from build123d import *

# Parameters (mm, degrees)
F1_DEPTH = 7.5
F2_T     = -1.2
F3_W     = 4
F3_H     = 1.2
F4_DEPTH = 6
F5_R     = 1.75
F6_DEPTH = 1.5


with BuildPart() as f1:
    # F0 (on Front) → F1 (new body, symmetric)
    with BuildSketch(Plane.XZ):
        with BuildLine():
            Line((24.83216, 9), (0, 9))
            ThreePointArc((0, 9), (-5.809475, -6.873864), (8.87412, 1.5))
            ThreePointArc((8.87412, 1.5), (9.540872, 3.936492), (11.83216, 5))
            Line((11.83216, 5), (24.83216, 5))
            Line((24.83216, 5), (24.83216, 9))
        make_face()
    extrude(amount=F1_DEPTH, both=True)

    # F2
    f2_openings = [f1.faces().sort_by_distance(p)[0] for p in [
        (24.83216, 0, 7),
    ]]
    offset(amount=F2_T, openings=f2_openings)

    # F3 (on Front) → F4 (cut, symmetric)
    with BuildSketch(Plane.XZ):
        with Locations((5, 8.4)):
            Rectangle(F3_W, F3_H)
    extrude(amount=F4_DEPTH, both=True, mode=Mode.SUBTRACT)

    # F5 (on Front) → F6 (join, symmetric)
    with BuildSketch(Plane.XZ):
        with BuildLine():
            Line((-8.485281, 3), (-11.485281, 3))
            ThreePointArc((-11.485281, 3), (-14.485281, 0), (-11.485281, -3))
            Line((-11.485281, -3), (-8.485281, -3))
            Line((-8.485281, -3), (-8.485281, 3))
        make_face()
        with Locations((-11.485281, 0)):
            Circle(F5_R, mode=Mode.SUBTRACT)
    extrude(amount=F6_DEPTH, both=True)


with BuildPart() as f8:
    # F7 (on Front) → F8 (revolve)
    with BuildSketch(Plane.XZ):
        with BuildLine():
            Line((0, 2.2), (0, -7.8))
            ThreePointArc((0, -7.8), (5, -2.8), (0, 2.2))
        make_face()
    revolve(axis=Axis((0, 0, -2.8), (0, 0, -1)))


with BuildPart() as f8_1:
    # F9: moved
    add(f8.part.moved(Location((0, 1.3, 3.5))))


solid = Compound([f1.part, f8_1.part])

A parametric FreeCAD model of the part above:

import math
import FreeCAD as App
import Part
import Sketcher
from FreeCAD import Vector
Q = App.Units.Quantity


def faces_at(feature, points):
    """Names of the faces that lie closest to the given points."""
    faces = feature.Shape.Faces
    near = lambda p: min(range(len(faces)), key=lambda i: faces[i].distToShape(Part.Vertex(*p))[0])
    return sorted({f"Face{near(p) + 1}" for p in points})


def add_polygon(sketch, points):
    """Adds a closed chain of lines whose ends are joined by coincident constraints."""
    first, n = sketch.GeometryCount, len(points)
    for a, b in zip(points, points[1:] + points[:1]):
        sketch.addGeometry(Part.LineSegment(App.Vector(*a, 0), App.Vector(*b, 0)), False)
    for i in range(n):
        sketch.addConstraint(Sketcher.Constraint("Coincident", first + i, 2, first + (i + 1) % n, 1))

doc = App.newDocument("Part")
body = doc.addObject("PartDesign::Body", "Body")

sketch1 = doc.addObject("Sketcher::SketchObject", "Sketch")
body.addObject(sketch1)
sketch1.AttachmentSupport = (doc.XZ_Plane, [""])
sketch1.MapMode = "FlatFace"
sketch1.addGeometry([
    Part.LineSegment(Vector(24.8, 9, 0), Vector(0, 9, 0)),
    Part.ArcOfCircle(Part.Circle(Vector(0, 0, 0), Vector(0, 0, 1), 9), math.radians(90), math.radians(370)),
    Part.ArcOfCircle(Part.Circle(Vector(11.8, 2, 0), Vector(0, 0, 1), 3), math.radians(90), math.radians(190)),
    Part.LineSegment(Vector(11.8, 5, 0), Vector(24.8, 5, 0)),
    Part.LineSegment(Vector(24.8, 5, 0), Vector(24.8, 9, 0)),
], False)
sketch1.addConstraint([
    Sketcher.Constraint("Tangent", 0, 2, 1, 1),
    Sketcher.Constraint("Tangent", 1, 2, 2, 2),
    Sketcher.Constraint("Tangent", 2, 1, 3, 1),
    Sketcher.Constraint("Coincident", 3, 2, 4, 1),
    Sketcher.Constraint("Coincident", 4, 2, 0, 1),
    Sketcher.Constraint("Horizontal", 0),
    Sketcher.Constraint("Horizontal", 3),
    Sketcher.Constraint("Vertical", 4),
    Sketcher.Constraint("Coincident", 1, 3, -1, 1),
    Sketcher.Constraint("Radius", 1, Q("9 mm")),
    Sketcher.Constraint("Radius", 2, Q("3 mm")),
    Sketcher.Constraint("DistanceX", 3, 1, 3, 2, Q("13 mm")),
    Sketcher.Constraint("DistanceY", 4, 1, 4, 2, Q("4 mm")),
])
pad1 = doc.addObject("PartDesign::Pad", "Pad")
body.addObject(pad1)
pad1.Profile = sketch1
pad1.Length = 15
pad1.Midplane = True
doc.recompute()

thickness = doc.addObject("PartDesign::Thickness", "Thickness")
body.addObject(thickness)
thickness.Base = (pad1, faces_at(pad1, [(24.832, 0, 7)]))
thickness.Value = 1.2
thickness.Reversed = True
thickness.Join = "Arc"

sketch2 = doc.addObject("Sketcher::SketchObject", "Sketch001")
body.addObject(sketch2)
sketch2.AttachmentSupport = (doc.XZ_Plane, [""])
sketch2.MapMode = "FlatFace"
add_polygon(sketch2, [(3, 9), (3, 7.8), (7, 7.8), (7, 9)])
sketch2.addConstraint([
    Sketcher.Constraint("Vertical", 0),
    Sketcher.Constraint("Horizontal", 1),
    Sketcher.Constraint("Vertical", 2),
    Sketcher.Constraint("Horizontal", 3),
    Sketcher.Constraint("DistanceX", 1, 1, 1, 2, Q("4 mm")),
    Sketcher.Constraint("DistanceY", 0, 2, 0, 1, Q("1.2 mm")),
    Sketcher.Constraint("DistanceX", -1, 1, 0, 2, Q("3 mm")),
    Sketcher.Constraint("DistanceY", -1, 1, 2, 2, Q("9 mm")),
])
pocket1 = doc.addObject("PartDesign::Pocket", "Pocket")
body.addObject(pocket1)
pocket1.Profile = sketch2
pocket1.Length = 12
pocket1.Midplane = True

sketch3 = doc.addObject("Sketcher::SketchObject", "Sketch002")
body.addObject(sketch3)
sketch3.AttachmentSupport = (doc.XZ_Plane, [""])
sketch3.MapMode = "FlatFace"
sketch3.addGeometry([
    Part.LineSegment(Vector(-8.5, 3, 0), Vector(-11.5, 3, 0)),
    Part.ArcOfCircle(Part.Circle(Vector(-11.5, 0, 0), Vector(0, 0, 1), 3), math.radians(90), math.radians(270)),
    Part.LineSegment(Vector(-11.5, -3, 0), Vector(-8.5, -3, 0)),
    Part.LineSegment(Vector(-8.5, -3, 0), Vector(-8.5, 3, 0)),
    Part.Circle(Vector(-11.5, 0, 0), Vector(0, 0, 1), 1.8),
], False)
sketch3.addConstraint([
    Sketcher.Constraint("Tangent", 0, 2, 1, 1),
    Sketcher.Constraint("Tangent", 1, 2, 2, 1),
    Sketcher.Constraint("Coincident", 2, 2, 3, 1),
    Sketcher.Constraint("Coincident", 3, 2, 0, 1),
    Sketcher.Constraint("Horizontal", 0),
    Sketcher.Constraint("Horizontal", 2),
    Sketcher.Constraint("Vertical", 3),
    Sketcher.Constraint("Coincident", 4, 3, 1, 3),
    Sketcher.Constraint("PointOnObject", 1, 3, -1),
    Sketcher.Constraint("Radius", 1, Q("3 mm")),
    Sketcher.Constraint("Diameter", 4, Q("3.5 mm")),
    Sketcher.Constraint("DistanceX", 0, 2, 0, 1, Q("3 mm")),
    Sketcher.Constraint("DistanceX", 1, 3, -1, 1, Q("11.485281 mm")),
])
pad2 = doc.addObject("PartDesign::Pad", "Pad001")
body.addObject(pad2)
pad2.Profile = sketch3
pad2.Length = 3
pad2.Midplane = True
body2 = doc.addObject("PartDesign::Body", "Body001")

sketch4 = doc.addObject("Sketcher::SketchObject", "Sketch003")
body2.addObject(sketch4)
sketch4.AttachmentSupport = (doc.getObject("XZ_Plane001"), [""])
sketch4.MapMode = "FlatFace"
sketch4.addGeometry([
    Part.LineSegment(Vector(0, 2, 0), Vector(0, -8, 0)),
    Part.ArcOfCircle(Part.Circle(Vector(0, -3, 0), Vector(0, 0, 1), 5), math.radians(-90), math.radians(90)),
], False)
sketch4.addConstraint([
    Sketcher.Constraint("Coincident", 0, 1, 1, 2),
    Sketcher.Constraint("Coincident", 1, 1, 0, 2),
    Sketcher.Constraint("Vertical", 0),
    Sketcher.Constraint("PointOnObject", 1, 3, -2),
    Sketcher.Constraint("PointOnObject", 0, 1, -2),
    Sketcher.Constraint("Radius", 1, Q("5 mm")),
    Sketcher.Constraint("DistanceY", 1, 3, -1, 1, Q("2.8 mm")),
])
revolution = doc.addObject("PartDesign::Revolution", "Revolution")
body2.addObject(revolution)
revolution.Profile = sketch4
revolution.ReferenceAxis = (sketch4, ["V_Axis"])
revolution.Angle = 360
body3 = doc.addObject("PartDesign::Body", "Body002")
doc.recompute()

body2.Placement = App.Placement(Vector(0, 1.3, 3.5), App.Rotation(Vector(0, 0, 1), 0))
boolean = doc.addObject("PartDesign::Boolean", "Boolean")
body3.addObject(boolean)
boolean.Type = "Fuse"
boolean.addObjects([body2])

doc.recompute()
